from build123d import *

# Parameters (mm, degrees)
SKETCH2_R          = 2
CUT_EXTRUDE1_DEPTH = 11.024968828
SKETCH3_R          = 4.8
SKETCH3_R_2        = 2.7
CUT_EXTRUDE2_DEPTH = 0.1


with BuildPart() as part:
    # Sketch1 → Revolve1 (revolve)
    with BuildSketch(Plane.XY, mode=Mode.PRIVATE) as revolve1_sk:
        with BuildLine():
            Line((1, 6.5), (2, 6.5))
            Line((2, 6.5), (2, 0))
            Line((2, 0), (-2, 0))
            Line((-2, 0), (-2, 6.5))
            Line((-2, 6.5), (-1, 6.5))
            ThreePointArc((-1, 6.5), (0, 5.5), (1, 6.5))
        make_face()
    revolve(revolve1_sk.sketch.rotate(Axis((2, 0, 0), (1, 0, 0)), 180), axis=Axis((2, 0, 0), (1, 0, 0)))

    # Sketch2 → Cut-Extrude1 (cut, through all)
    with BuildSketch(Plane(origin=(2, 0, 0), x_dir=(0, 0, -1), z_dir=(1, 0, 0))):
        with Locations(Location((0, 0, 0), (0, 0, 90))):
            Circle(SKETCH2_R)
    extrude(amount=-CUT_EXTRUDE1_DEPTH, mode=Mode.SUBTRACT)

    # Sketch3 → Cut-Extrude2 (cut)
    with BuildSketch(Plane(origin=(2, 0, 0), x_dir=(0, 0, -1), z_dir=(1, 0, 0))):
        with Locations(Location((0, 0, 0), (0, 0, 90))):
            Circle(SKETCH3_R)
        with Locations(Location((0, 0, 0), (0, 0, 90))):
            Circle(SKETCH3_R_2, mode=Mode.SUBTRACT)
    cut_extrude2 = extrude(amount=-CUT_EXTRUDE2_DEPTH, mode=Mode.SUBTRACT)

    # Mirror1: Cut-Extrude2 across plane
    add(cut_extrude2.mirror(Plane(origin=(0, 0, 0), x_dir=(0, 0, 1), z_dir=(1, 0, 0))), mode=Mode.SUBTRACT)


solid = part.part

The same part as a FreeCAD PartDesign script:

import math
import FreeCAD as App
import Part
import Sketcher

V = App.Vector
Q = App.Units.Quantity

doc = App.newDocument("Part")
body = doc.addObject("PartDesign::Body", "Body")

sketch1 = body.newObject("Sketcher::SketchObject", "Sketch")
sketch1.AttachmentSupport = (doc.getObject("XY_Plane"), [""])
sketch1.MapMode = "FlatFace"
sketch1.addGeometry([
    Part.LineSegment(V(2, 6.5, 0), V(1, 6.5, 0)),
    Part.ArcOfCircle(Part.Circle(V(0, 6.5, 0), V(0, 0, 1), 1), math.radians(180), math.radians(360)),
    Part.LineSegment(V(-1, 6.5, 0), V(-2, 6.5, 0)),
    Part.LineSegment(V(-2, 6.5, 0), V(-2, 0, 0)),
    Part.LineSegment(V(-2, 0, 0), V(2, 0, 0)),
    Part.LineSegment(V(2, 0, 0), V(2, 6.5, 0)),
], False)
sketch1.addConstraint([
    Sketcher.Constraint("Coincident", 0, 2, 1, 2),
    Sketcher.Constraint("Coincident", 1, 1, 2, 1),
    Sketcher.Constraint("Coincident", 2, 2, 3, 1),
    Sketcher.Constraint("Coincident", 3, 2, 4, 1),
    Sketcher.Constraint("Coincident", 4, 2, 5, 1),
    Sketcher.Constraint("Coincident", 5, 2, 0, 1),
    Sketcher.Constraint("Horizontal", 0),
    Sketcher.Constraint("Horizontal", 2),
    Sketcher.Constraint("Vertical", 3),
    Sketcher.Constraint("Horizontal", 4),
    Sketcher.Constraint("Vertical", 5),
    Sketcher.Constraint("Symmetric", 3, 2, 4, 2, -1, 1),
    Sketcher.Constraint("Symmetric", 0, 2, 1, 1, -2),
    Sketcher.Constraint("Horizontal", 1, 3, 0, 2),
    Sketcher.Constraint("Radius", 1, Q("1 mm")),
    Sketcher.Constraint("DistanceX", 0, 2, 0, 1, Q("1 mm")),
    Sketcher.Constraint("DistanceY", 3, 2, 3, 1, Q("6.5 mm")),
])
revolution = body.newObject("PartDesign::Revolution", "Revolution")
revolution.Profile = sketch1
revolution.ReferenceAxis = (sketch1, ["H_Axis"])
revolution.Angle = 360

sketch2 = body.newObject("Sketcher::SketchObject", "Sketch001")
sketch2.AttachmentSupport = (doc.getObject("YZ_Plane"), [""])
sketch2.MapMode = "FlatFace"
sketch2.AttachmentOffset = App.Placement(V(0, 0, 2), App.Rotation())
sketch2.addGeometry(Part.Circle(V(0, 0, 0), V(0, 0, 1), 2), False)
sketch2.addConstraint([
    Sketcher.Constraint("Coincident", 0, 3, -1, 1),
    Sketcher.Constraint("Diameter", 0, Q("4 mm")),
])
pocket1 = body.newObject("PartDesign::Pocket", "Pocket")
pocket1.Profile = sketch2
pocket1.Type = "ThroughAll"

sketch3 = body.newObject("Sketcher::SketchObject", "Sketch002")
sketch3.AttachmentSupport = (doc.getObject("YZ_Plane"), [""])
sketch3.MapMode = "FlatFace"
sketch3.AttachmentOffset = App.Placement(V(0, 0, 2), App.Rotation())
sketch3.addGeometry([
    Part.Circle(V(0, 0, 0), V(0, 0, 1), 4.8),
    Part.Circle(V(0, 0, 0), V(0, 0, 1), 2.7),
], False)
sketch3.addConstraint([
    Sketcher.Constraint("Coincident", 0, 3, -1, 1),
    Sketcher.Constraint("Coincident", 1, 3, -1, 1),
    Sketcher.Constraint("Diameter", 0, Q("9.6 mm")),
    Sketcher.Constraint("Diameter", 1, Q("5.4 mm")),
])
pocket2 = body.newObject("PartDesign::Pocket", "Pocket001")
pocket2.Profile = sketch3
pocket2.Length = 0.1
doc.recompute()

mirrored = body.newObject("PartDesign::Mirrored", "Mirrored")
mirrored.Originals = [pocket2]
mirrored.MirrorPlane = (doc.getObject("YZ_Plane"), [""])
body.Tip = mirrored

doc.recompute()
